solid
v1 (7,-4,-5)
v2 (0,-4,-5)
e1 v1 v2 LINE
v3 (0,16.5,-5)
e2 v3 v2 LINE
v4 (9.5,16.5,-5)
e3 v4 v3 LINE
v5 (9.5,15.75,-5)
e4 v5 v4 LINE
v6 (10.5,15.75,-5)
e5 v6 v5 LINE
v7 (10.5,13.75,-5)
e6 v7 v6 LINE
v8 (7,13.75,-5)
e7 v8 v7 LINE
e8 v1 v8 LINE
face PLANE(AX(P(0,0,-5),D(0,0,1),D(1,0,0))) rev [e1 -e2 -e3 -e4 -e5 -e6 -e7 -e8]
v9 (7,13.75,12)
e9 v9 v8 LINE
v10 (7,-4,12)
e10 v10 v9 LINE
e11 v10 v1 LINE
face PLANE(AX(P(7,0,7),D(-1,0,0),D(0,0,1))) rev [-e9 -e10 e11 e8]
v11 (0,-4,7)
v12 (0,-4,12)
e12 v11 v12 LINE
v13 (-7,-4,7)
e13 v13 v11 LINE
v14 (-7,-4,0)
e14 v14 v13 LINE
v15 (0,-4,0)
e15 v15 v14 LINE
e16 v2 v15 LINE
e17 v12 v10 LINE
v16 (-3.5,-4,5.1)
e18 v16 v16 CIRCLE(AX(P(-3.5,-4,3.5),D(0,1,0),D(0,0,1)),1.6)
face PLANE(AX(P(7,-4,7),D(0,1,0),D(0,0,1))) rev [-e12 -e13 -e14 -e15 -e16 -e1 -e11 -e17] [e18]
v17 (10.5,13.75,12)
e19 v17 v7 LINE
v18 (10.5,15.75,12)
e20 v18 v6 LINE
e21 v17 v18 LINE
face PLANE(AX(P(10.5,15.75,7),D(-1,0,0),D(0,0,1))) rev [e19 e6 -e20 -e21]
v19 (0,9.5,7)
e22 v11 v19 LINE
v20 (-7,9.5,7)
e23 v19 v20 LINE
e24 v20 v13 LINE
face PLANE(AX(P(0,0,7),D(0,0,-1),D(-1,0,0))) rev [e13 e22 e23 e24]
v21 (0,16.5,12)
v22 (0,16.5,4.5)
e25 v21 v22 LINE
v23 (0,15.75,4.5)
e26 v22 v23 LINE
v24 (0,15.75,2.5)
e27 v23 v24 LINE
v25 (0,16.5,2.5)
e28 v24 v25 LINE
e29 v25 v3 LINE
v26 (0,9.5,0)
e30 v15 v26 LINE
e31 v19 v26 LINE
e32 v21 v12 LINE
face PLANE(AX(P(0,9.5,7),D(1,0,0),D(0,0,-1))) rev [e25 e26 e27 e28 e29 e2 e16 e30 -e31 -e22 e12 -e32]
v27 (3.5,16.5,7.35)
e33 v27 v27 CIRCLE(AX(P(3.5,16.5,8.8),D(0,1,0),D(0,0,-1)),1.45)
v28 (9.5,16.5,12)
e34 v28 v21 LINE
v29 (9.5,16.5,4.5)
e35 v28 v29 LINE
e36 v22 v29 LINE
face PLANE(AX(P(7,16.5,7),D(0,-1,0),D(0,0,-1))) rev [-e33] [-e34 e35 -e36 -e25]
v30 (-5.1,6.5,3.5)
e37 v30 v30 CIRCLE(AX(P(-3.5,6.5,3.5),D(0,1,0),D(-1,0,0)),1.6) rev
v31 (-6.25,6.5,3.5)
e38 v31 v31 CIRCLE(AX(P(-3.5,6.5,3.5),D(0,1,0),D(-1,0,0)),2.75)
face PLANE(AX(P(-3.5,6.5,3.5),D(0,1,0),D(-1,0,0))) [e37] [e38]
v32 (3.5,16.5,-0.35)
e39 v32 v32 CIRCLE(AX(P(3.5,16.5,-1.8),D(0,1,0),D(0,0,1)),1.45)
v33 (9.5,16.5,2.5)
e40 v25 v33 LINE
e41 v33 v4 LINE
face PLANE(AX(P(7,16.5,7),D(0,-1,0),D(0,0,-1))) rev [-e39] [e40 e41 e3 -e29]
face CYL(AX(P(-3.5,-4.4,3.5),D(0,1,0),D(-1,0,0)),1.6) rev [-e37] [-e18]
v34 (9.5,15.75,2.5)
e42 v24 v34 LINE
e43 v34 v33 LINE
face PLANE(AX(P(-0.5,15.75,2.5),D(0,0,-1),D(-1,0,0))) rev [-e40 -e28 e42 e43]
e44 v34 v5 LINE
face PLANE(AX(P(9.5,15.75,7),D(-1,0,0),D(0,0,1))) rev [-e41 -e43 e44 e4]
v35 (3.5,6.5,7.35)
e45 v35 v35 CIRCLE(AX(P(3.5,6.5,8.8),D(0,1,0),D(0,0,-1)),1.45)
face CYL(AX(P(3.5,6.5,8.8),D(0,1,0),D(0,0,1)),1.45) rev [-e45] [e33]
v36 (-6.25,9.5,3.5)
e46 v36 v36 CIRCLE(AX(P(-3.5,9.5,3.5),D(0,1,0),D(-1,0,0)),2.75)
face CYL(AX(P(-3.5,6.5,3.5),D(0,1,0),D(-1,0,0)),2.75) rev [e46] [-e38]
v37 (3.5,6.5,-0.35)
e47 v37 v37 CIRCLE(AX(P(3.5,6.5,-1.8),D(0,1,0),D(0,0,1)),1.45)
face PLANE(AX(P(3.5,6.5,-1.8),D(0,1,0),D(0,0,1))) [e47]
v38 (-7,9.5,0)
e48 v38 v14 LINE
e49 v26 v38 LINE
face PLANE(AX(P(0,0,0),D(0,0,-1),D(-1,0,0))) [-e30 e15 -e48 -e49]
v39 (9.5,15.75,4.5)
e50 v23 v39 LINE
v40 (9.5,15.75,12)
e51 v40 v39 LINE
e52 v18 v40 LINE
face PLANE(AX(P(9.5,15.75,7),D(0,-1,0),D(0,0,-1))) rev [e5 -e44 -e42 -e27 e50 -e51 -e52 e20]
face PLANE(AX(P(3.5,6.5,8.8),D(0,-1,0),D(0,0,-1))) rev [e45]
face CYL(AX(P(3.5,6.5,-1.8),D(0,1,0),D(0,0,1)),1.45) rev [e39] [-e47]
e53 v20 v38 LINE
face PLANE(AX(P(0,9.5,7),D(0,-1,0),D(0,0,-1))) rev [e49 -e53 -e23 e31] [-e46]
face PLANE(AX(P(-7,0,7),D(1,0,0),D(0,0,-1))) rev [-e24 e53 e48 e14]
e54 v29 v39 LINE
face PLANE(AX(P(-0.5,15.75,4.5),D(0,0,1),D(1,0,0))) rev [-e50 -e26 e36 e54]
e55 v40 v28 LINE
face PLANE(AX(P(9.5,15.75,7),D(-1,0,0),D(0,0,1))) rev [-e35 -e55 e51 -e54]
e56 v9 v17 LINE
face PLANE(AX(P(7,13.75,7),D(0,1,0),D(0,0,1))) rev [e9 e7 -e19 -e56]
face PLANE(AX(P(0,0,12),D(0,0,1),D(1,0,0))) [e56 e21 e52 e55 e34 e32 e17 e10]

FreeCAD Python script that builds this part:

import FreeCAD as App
import Part
import Sketcher
from FreeCAD import Vector


def add_polygon(sketch, points):
    """Adds a closed chain of lines whose ends are joined by coincident constraints."""
    first, n = sketch.GeometryCount, len(points)
    for a, b in zip(points, points[1:] + points[:1]):
        sketch.addGeometry(Part.LineSegment(App.Vector(*a, 0), App.Vector(*b, 0)), False)
    for i in range(n):
        sketch.addConstraint(Sketcher.Constraint("Coincident", first + i, 2, first + (i + 1) % n, 1))

doc = App.newDocument("Part")
params = doc.addObject("Spreadsheet::Sheet", "Params")
for row, (alias, value) in enumerate([
    ("sketch1_width", "3 mm"),
    ("sketch1_width2", "1 mm"),
    ("sketch1_width3", "7 mm"),
    ("sketch1_width4", "11 mm"),
    ("sketch1_height", "4 mm"),
    ("pad1_length", "7 mm"),
    ("sketch2_diameter", "3.2 mm"),
    ("pocket1_length", "13.9 mm"),
    ("sketch3_diameter", "5.5 mm"),
    ("pocket2_length", "3 mm"),
    ("sketch4_width", "7 mm"),
    ("sketch4_width2", "1 mm"),
    ("sketch4_height", "2 mm"),
    ("sketch4_width3", "3.5 mm"),
    ("sketch4_height2", "16.5 mm"),
    ("pad2_length", "5 mm"),
    ("pad2_length2", "12 mm"),
    ("sketch5_diameter", "2.9 mm"),
    ("pocket3_length", "10 mm"),
    ("sketch6_height", "2 mm"),
    ("sketch6_width", "0.75 mm"),
    ("pocket4_length", "10 mm"),
    ("sketch7_diameter", "3.2 mm"),
    ("sketch7_width", "7 mm"),
    ("sketch7_width2", "3 mm"),
    ("sketch7_height", "5 mm"),
    ("pad3_length", "4 mm"),
], start=1):
    params.set(f"A{row}", alias)
    params.set(f"B{row}", "=" + value)
    params.setAlias(f"B{row}", alias)

body = doc.addObject("PartDesign::Body", "Body")

sketch1 = body.newObject("Sketcher::SketchObject", "Sketch")
sketch1.AttachmentSupport = (doc.getObject("XY_Plane"), [""])
sketch1.MapMode = "FlatFace"
add_polygon(sketch1, [(4, 0), (4, -4), (7, -4), (7, 13.75), (10.5, 13.75), (10.5, 15.75), (9.5, 15.75), (9.5, 16.5), (0, 16.5), (0, 9.5), (-7, 9.5), (-7, 0)])
sketch1.addConstraint([
    Sketcher.Constraint("Vertical", 0),
    Sketcher.Constraint("Horizontal", 1),
    Sketcher.Constraint("Vertical", 2),
    Sketcher.Constraint("Horizontal", 3),
    Sketcher.Constraint("Vertical", 4),
    Sketcher.Constraint("Horizontal", 5),
    Sketcher.Constraint("Vertical", 6),
    Sketcher.Constraint("Horizontal", 7),
    Sketcher.Constraint("Vertical", 8),
    Sketcher.Constraint("Horizontal", 9),
    Sketcher.Constraint("Vertical", 10),
    Sketcher.Constraint("Horizontal", 11),
    Sketcher.Constraint("PointOnObject", 7, 2, -2),
    Sketcher.Constraint("PointOnObject", 10, 2, -1),
    Sketcher.Constraint("Equal", 9, 8),
    Sketcher.Constraint("Equal", 7, 10),
    Sketcher.Constraint("DistanceX", 1, 1, 1, 2, 3.0),
    Sketcher.Constraint("DistanceX", 5, 2, 5, 1, 1.0),
    Sketcher.Constraint("DistanceX", 9, 2, 9, 1, 7.0),
    Sketcher.Constraint("DistanceX", 11, 1, 11, 2, 11.0),
    Sketcher.Constraint("DistanceY", 0, 2, 0, 1, 4.0),
    Sketcher.Constraint("DistanceY", 4, 1, 4, 2, 2.0),
    Sketcher.Constraint("DistanceX", 3, 1, 3, 2, 3.5),
    Sketcher.Constraint("DistanceY", 2, 1, 2, 2, 17.75),
])
sketch1.setExpression("Constraints[28]", "Params.sketch1_width")
sketch1.setExpression("Constraints[29]", "Params.sketch1_width2")
sketch1.setExpression("Constraints[30]", "Params.sketch1_width3")
sketch1.setExpression("Constraints[31]", "Params.sketch1_width4")
sketch1.setExpression("Constraints[32]", "Params.sketch1_height")
pad1 = body.newObject("PartDesign::Pad", "Pad")
pad1.Profile = sketch1
pad1.setExpression("Length", "Params.pad1_length")

sketch2 = body.newObject("Sketcher::SketchObject", "Sketch001")
sketch2.AttachmentSupport = (doc.getObject("XZ_Plane"), [""])
sketch2.MapMode = "FlatFace"
sketch2.AttachmentOffset = App.Placement(Vector(0, 0, -9.5), App.Rotation())
sketch2.addGeometry(Part.Circle(Vector(-3.5, 3.5, 0), Vector(0, 0, 1), 1.6), False)
sketch2.addConstraint([
    Sketcher.Constraint("Diameter", 0, 3.2),
    Sketcher.Constraint("DistanceX", 0, 3, -1, 1, 3.5),
    Sketcher.Constraint("DistanceY", -1, 1, 0, 3, 3.5),
])
sketch2.setExpression("Constraints[0]", "Params.sketch2_diameter")
pocket1 = body.newObject("PartDesign::Pocket", "Pocket")
pocket1.Profile = sketch2
pocket1.setExpression("Length", "Params.pocket1_length")
pocket1.Reversed = True

sketch3 = body.newObject("Sketcher::SketchObject", "Sketch002")
sketch3.AttachmentSupport = (doc.getObject("XZ_Plane"), [""])
sketch3.MapMode = "FlatFace"
sketch3.AttachmentOffset = App.Placement(Vector(0, 0, -9.5), App.Rotation())
sketch3.addGeometry(Part.Circle(Vector(-3.5, 3.5, 0), Vector(0, 0, 1), 2.75), False)
sketch3.addConstraint([
    Sketcher.Constraint("Diameter", 0, 5.5),
    Sketcher.Constraint("DistanceX", 0, 3, -1, 1, 3.5),
    Sketcher.Constraint("DistanceY", -1, 1, 0, 3, 3.5),
])
sketch3.setExpression("Constraints[0]", "Params.sketch3_diameter")
pocket2 = body.newObject("PartDesign::Pocket", "Pocket001")
pocket2.Profile = sketch3
pocket2.setExpression("Length", "Params.pocket2_length")
pocket2.Reversed = True

sketch4 = body.newObject("Sketcher::SketchObject", "Sketch003")
sketch4.AttachmentSupport = (doc.getObject("XY_Plane"), [""])
sketch4.MapMode = "FlatFace"
sketch4.AttachmentOffset = App.Placement(Vector(0, 0, 7), App.Rotation())
add_polygon(sketch4, [(0, 16.5), (0, 0), (7, 0), (7, 13.75), (10.5, 13.75), (10.5, 15.75), (9.5, 15.75), (9.5, 16.5)])
sketch4.addConstraint([
    Sketcher.Constraint("Vertical", 0),
    Sketcher.Constraint("Horizontal", 1),
    Sketcher.Constraint("Vertical", 2),
    Sketcher.Constraint("Horizontal", 3),
    Sketcher.Constraint("Vertical", 4),
    Sketcher.Constraint("Horizontal", 5),
    Sketcher.Constraint("Vertical", 6),
    Sketcher.Constraint("Horizontal", 7),
    Sketcher.Constraint("Coincident", 0, 2, -1, 1),
    Sketcher.Constraint("DistanceX", 1, 1, 1, 2, 7.0),
    Sketcher.Constraint("DistanceX", 5, 2, 5, 1, 1.0),
    Sketcher.Constraint("DistanceY", 4, 1, 4, 2, 2.0),
    Sketcher.Constraint("DistanceX", 3, 1, 3, 2, 3.5),
    Sketcher.Constraint("DistanceY", 0, 2, 0, 1, 16.5),
    Sketcher.Constraint("DistanceY", 2, 1, 2, 2, 13.75),
])
sketch4.setExpression("Constraints[17]", "Params.sketch4_width")
sketch4.setExpression("Constraints[18]", "Params.sketch4_width2")
sketch4.setExpression("Constraints[19]", "Params.sketch4_height")
sketch4.setExpression("Constraints[20]", "Params.sketch4_width3")
sketch4.setExpression("Constraints[21]", "Params.sketch4_height2")
pad2 = body.newObject("PartDesign::Pad", "Pad001")
pad2.Profile = sketch4
pad2.Type = "TwoLengths"
pad2.setExpression("Length", "Params.pad2_length")
pad2.setExpression("Length2", "Params.pad2_length2")

sketch5 = body.newObject("Sketcher::SketchObject", "Sketch004")
sketch5.AttachmentSupport = (doc.getObject("XZ_Plane"), [""])
sketch5.MapMode = "FlatFace"
sketch5.AttachmentOffset = App.Placement(Vector(0, 0, -16.5), App.Rotation())
sketch5.addGeometry([
    Part.Circle(Vector(3.5, -1.8, 0), Vector(0, 0, 1), 1.45),
    Part.Circle(Vector(3.5, 8.8, 0), Vector(0, 0, 1), 1.45),
], False)
sketch5.addConstraint([
    Sketcher.Constraint("Equal", 0, 1),
    Sketcher.Constraint("Vertical", 0, 3, 1, 3),
    Sketcher.Constraint("Diameter", 0, 2.9),
    Sketcher.Constraint("DistanceX", -1, 1, 0, 3, 3.5),
    Sketcher.Constraint("DistanceY", 0, 3, -1, 1, 1.8),
    Sketcher.Constraint("DistanceY", -1, 1, 1, 3, 8.8),
])
sketch5.setExpression("Constraints[2]", "Params.sketch5_diameter")
pocket3 = body.newObject("PartDesign::Pocket", "Pocket002")
pocket3.Profile = sketch5
pocket3.setExpression("Length", "Params.pocket3_length")
pocket3.Reversed = True

sketch6 = body.newObject("Sketcher::SketchObject", "Sketch005")
sketch6.AttachmentSupport = (doc.getObject("YZ_Plane"), [""])
sketch6.MapMode = "FlatFace"
sketch6.AttachmentOffset = App.Placement(Vector(0, 0, 9.5), App.Rotation())
add_polygon(sketch6, [(16.5, 4.5), (15.75, 4.5), (15.75, 2.5), (16.5, 2.5)])
sketch6.addConstraint([
    Sketcher.Constraint("Horizontal", 0),
    Sketcher.Constraint("Vertical", 1),
    Sketcher.Constraint("Horizontal", 2),
    Sketcher.Constraint("Vertical", 3),
    Sketcher.Constraint("DistanceY", 1, 2, 1, 1, 2.0),
    Sketcher.Constraint("DistanceX", 0, 2, 0, 1, 0.75),
    Sketcher.Constraint("DistanceY", -1, 1, 0, 2, 4.5),
    Sketcher.Constraint("DistanceX", -1, 1, 2, 2, 16.5),
])
sketch6.setExpression("Constraints[8]", "Params.sketch6_height")
sketch6.setExpression("Constraints[9]", "Params.sketch6_width")
pocket4 = body.newObject("PartDesign::Pocket", "Pocket003")
pocket4.Profile = sketch6
pocket4.setExpression("Length", "Params.pocket4_length")

sketch7 = body.newObject("Sketcher::SketchObject", "Sketch006")
sketch7.AttachmentSupport = (doc.getObject("XZ_Plane"), [""])
sketch7.MapMode = "FlatFace"
add_polygon(sketch7, [(-7, 0), (0, 0), (0, -5), (7, -5), (7, 0), (4, 0), (4, 7), (7, 7), (7, 12), (0, 12), (0, 7), (-7, 7)])
sketch7.addGeometry(Part.Circle(Vector(-3.5, 3.5, 0), Vector(0, 0, 1), 1.6), False)
sketch7.addConstraint([
    Sketcher.Constraint("Horizontal", 0),
    Sketcher.Constraint("Vertical", 1),
    Sketcher.Constraint("Horizontal", 2),
    Sketcher.Constraint("Vertical", 3),
    Sketcher.Constraint("Horizontal", 4),
    Sketcher.Constraint("Vertical", 5),
    Sketcher.Constraint("Horizontal", 6),
    Sketcher.Constraint("Vertical", 7),
    Sketcher.Constraint("Horizontal", 8),
    Sketcher.Constraint("Vertical", 9),
    Sketcher.Constraint("Horizontal", 10),
    Sketcher.Constraint("Vertical", 11),
    Sketcher.Constraint("Coincident", 0, 2, -1, 1),
    Sketcher.Constraint("Symmetric", 3, 2, 11, 2, -1, 1),
    Sketcher.Constraint("Symmetric", 6, 2, 10, 2, -2),
    Sketcher.Constraint("PointOnObject", 8, 2, -2),
    Sketcher.Constraint("Equal", 10, 5),
    Sketcher.Constraint("Equal", 3, 7),
    Sketcher.Constraint("Diameter", 12, 3.2),
    Sketcher.Constraint("DistanceX", 0, 1, 0, 2, 7.0),
    Sketcher.Constraint("DistanceX", 4, 2, 4, 1, 3.0),
    Sketcher.Constraint("DistanceY", 1, 2, 1, 1, 5.0),
    Sketcher.Constraint("DistanceX", 12, 3, -1, 1, 3.5),
    Sketcher.Constraint("DistanceY", -1, 1, 12, 3, 3.5),
])
sketch7.setExpression("Constraints[30]", "Params.sketch7_diameter")
sketch7.setExpression("Constraints[31]", "Params.sketch7_width")
sketch7.setExpression("Constraints[32]", "Params.sketch7_width2")
sketch7.setExpression("Constraints[33]", "Params.sketch7_height")
pad3 = body.newObject("PartDesign::Pad", "Pad002")
pad3.Profile = sketch7
pad3.setExpression("Length", "Params.pad3_length")

doc.recompute()
